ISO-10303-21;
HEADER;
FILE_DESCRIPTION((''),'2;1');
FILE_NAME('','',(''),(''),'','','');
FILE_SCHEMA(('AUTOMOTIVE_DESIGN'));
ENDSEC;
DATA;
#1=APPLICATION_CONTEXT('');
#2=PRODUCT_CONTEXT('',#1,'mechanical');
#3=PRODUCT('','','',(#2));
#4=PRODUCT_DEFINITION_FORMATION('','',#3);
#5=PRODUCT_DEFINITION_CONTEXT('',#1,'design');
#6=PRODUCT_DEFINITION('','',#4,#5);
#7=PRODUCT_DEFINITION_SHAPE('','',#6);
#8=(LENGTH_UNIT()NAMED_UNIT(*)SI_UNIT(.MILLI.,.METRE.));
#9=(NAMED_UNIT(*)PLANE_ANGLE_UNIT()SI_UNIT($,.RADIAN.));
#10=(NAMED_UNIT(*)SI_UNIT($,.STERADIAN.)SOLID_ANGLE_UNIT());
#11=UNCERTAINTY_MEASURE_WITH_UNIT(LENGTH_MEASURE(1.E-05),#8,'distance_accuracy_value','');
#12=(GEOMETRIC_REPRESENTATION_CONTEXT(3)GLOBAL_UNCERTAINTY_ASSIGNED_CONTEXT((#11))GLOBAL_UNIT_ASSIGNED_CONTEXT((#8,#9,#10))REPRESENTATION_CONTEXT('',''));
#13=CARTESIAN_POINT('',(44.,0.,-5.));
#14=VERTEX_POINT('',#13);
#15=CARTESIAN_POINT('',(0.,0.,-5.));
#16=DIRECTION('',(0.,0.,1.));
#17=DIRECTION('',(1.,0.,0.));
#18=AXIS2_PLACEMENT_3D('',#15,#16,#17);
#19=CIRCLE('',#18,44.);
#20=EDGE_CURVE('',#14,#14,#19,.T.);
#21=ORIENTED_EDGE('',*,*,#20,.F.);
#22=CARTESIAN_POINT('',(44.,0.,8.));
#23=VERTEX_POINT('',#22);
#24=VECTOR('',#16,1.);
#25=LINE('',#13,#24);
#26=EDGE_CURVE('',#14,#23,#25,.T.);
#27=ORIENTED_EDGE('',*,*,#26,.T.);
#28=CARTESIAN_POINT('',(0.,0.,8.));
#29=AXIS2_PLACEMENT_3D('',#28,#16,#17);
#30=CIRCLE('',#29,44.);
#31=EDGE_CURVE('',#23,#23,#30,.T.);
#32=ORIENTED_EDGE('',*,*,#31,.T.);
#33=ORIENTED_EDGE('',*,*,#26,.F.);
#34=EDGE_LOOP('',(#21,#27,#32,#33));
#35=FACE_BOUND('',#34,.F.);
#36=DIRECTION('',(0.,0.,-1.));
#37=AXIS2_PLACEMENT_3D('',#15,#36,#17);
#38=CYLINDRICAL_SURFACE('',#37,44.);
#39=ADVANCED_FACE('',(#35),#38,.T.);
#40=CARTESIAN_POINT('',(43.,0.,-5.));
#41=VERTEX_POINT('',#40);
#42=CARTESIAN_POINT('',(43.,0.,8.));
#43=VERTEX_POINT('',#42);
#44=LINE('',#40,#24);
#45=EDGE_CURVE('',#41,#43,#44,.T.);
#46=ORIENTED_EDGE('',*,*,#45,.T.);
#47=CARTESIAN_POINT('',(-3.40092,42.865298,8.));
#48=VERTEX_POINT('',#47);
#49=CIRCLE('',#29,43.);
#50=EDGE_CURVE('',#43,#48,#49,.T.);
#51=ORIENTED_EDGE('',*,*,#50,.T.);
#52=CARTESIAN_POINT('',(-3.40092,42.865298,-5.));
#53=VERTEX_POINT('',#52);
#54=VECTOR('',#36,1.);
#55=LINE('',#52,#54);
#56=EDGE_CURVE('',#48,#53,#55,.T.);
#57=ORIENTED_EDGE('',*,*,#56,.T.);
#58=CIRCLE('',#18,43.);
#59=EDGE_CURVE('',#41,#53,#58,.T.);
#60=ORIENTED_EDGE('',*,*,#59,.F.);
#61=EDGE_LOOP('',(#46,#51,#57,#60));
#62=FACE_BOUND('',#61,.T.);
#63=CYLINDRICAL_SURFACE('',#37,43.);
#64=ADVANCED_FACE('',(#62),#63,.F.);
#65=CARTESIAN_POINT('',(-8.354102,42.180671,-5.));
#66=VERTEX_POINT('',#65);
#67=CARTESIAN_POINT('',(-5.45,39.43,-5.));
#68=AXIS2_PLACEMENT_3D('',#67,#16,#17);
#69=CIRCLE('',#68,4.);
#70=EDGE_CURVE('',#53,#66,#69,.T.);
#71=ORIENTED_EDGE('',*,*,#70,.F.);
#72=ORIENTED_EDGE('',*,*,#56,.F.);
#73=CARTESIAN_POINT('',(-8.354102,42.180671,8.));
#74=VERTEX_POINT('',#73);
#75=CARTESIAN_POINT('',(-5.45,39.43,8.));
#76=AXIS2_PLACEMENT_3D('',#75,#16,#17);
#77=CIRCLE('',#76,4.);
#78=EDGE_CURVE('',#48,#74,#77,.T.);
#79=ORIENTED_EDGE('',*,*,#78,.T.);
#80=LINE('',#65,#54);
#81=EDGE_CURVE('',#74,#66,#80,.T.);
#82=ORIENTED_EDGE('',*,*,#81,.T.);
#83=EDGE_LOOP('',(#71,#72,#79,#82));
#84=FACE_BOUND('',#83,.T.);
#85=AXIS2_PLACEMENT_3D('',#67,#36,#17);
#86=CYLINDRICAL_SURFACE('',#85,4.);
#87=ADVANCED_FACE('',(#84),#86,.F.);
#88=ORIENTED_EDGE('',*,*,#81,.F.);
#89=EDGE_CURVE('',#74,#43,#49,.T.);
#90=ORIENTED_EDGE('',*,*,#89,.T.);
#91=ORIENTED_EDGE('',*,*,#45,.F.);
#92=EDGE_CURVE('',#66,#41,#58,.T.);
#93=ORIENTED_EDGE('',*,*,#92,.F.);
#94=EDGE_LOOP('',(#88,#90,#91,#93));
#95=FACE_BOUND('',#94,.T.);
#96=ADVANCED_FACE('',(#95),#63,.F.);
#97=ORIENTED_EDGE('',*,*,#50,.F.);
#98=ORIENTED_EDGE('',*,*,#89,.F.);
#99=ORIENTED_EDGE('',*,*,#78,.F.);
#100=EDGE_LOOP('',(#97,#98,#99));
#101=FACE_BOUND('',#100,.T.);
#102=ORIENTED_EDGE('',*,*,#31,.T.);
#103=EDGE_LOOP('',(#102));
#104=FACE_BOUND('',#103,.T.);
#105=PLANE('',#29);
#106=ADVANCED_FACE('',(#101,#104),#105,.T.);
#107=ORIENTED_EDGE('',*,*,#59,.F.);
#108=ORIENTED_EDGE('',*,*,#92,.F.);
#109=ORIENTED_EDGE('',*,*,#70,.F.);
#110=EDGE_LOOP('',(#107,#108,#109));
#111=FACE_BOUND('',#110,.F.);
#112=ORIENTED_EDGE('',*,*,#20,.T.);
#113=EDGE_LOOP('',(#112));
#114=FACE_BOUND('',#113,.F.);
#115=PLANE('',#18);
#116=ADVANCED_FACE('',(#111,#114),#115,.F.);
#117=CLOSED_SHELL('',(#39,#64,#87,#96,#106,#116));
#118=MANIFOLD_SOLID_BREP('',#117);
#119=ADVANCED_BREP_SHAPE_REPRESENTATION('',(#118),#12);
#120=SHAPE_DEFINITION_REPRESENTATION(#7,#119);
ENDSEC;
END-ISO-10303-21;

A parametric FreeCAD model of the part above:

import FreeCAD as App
import Part
import Sketcher

V = App.Vector
Q = App.Units.Quantity

doc = App.newDocument("Part")
body = doc.addObject("PartDesign::Body", "Body")

# Sketch on XY plane
sketch1 = doc.addObject("Sketcher::SketchObject", "Sketch")
body.addObject(sketch1)
sketch1.AttachmentSupport = (doc.XY_Plane, [""])
sketch1.MapMode = "FlatFace"
sketch1.addGeometry(Part.Circle(V(-5.45, 39.43, 0), V(0, 0, 1), 4), False)
sketch1.addConstraint([
    Sketcher.Constraint("Diameter", 0, Q("8 mm")),
    Sketcher.Constraint("DistanceX", 0, 3, -1, 1, Q("5.45 mm")),
    Sketcher.Constraint("DistanceY", -1, 1, 0, 3, Q("39.43 mm")),
])
pad1 = doc.addObject("PartDesign::Pad", "Pad")
body.addObject(pad1)
pad1.Profile = sketch1
pad1.Length = 13
body2 = doc.addObject("PartDesign::Body", "Body001")
doc.recompute()

body.Placement = App.Placement(V(0, 0, -5), App.Rotation(V(0, 0, 1), 0))
boolean = doc.addObject("PartDesign::Boolean", "Boolean")
body2.addObject(boolean)
boolean.Type = "Fuse"
boolean.addObjects([body])
body3 = doc.addObject("PartDesign::Body", "Body002")

# Sketch on XY plane
sketch2 = doc.addObject("Sketcher::SketchObject", "Sketch001")
body3.addObject(sketch2)
sketch2.AttachmentSupport = (doc.getObject("XY_Plane002"), [""])
sketch2.MapMode = "FlatFace"
sketch2.AttachmentOffset = App.Placement(V(0, 0, -5), App.Rotation())
sketch2.addGeometry(Part.Circle(V(0, 0, 0), V(0, 0, 1), 43), False)
sketch2.addConstraint([
    Sketcher.Constraint("Coincident", 0, 3, -1, 1),
    Sketcher.Constraint("Diameter", 0, Q("86 mm")),
])
pad2 = doc.addObject("PartDesign::Pad", "Pad001")
body3.addObject(pad2)
pad2.Profile = sketch2
pad2.Length = 13
doc.recompute()

boolean2 = doc.addObject("PartDesign::Boolean", "Boolean001")
body3.addObject(boolean2)
boolean2.Type = "Fuse"
boolean2.addObjects([body2])
body4 = doc.addObject("PartDesign::Body", "Body003")

# Sketch on XY plane
sketch3 = doc.addObject("Sketcher::SketchObject", "Sketch002")
body4.addObject(sketch3)
sketch3.AttachmentSupport = (doc.getObject("XY_Plane003"), [""])
sketch3.MapMode = "FlatFace"
sketch3.AttachmentOffset = App.Placement(V(0, 0, -5), App.Rotation())
sketch3.addGeometry(Part.Circle(V(0, 0, 0), V(0, 0, 1), 44), False)
sketch3.addConstraint([
    Sketcher.Constraint("Coincident", 0, 3, -1, 1),
    Sketcher.Constraint("Diameter", 0, Q("88 mm")),
])
pad3 = doc.addObject("PartDesign::Pad", "Pad002")
body4.addObject(pad3)
pad3.Profile = sketch3
pad3.Length = 13
doc.recompute()

boolean3 = doc.addObject("PartDesign::Boolean", "Boolean002")
body4.addObject(boolean3)
boolean3.Type = "Cut"
boolean3.addObjects([body3])

doc.recompute()
